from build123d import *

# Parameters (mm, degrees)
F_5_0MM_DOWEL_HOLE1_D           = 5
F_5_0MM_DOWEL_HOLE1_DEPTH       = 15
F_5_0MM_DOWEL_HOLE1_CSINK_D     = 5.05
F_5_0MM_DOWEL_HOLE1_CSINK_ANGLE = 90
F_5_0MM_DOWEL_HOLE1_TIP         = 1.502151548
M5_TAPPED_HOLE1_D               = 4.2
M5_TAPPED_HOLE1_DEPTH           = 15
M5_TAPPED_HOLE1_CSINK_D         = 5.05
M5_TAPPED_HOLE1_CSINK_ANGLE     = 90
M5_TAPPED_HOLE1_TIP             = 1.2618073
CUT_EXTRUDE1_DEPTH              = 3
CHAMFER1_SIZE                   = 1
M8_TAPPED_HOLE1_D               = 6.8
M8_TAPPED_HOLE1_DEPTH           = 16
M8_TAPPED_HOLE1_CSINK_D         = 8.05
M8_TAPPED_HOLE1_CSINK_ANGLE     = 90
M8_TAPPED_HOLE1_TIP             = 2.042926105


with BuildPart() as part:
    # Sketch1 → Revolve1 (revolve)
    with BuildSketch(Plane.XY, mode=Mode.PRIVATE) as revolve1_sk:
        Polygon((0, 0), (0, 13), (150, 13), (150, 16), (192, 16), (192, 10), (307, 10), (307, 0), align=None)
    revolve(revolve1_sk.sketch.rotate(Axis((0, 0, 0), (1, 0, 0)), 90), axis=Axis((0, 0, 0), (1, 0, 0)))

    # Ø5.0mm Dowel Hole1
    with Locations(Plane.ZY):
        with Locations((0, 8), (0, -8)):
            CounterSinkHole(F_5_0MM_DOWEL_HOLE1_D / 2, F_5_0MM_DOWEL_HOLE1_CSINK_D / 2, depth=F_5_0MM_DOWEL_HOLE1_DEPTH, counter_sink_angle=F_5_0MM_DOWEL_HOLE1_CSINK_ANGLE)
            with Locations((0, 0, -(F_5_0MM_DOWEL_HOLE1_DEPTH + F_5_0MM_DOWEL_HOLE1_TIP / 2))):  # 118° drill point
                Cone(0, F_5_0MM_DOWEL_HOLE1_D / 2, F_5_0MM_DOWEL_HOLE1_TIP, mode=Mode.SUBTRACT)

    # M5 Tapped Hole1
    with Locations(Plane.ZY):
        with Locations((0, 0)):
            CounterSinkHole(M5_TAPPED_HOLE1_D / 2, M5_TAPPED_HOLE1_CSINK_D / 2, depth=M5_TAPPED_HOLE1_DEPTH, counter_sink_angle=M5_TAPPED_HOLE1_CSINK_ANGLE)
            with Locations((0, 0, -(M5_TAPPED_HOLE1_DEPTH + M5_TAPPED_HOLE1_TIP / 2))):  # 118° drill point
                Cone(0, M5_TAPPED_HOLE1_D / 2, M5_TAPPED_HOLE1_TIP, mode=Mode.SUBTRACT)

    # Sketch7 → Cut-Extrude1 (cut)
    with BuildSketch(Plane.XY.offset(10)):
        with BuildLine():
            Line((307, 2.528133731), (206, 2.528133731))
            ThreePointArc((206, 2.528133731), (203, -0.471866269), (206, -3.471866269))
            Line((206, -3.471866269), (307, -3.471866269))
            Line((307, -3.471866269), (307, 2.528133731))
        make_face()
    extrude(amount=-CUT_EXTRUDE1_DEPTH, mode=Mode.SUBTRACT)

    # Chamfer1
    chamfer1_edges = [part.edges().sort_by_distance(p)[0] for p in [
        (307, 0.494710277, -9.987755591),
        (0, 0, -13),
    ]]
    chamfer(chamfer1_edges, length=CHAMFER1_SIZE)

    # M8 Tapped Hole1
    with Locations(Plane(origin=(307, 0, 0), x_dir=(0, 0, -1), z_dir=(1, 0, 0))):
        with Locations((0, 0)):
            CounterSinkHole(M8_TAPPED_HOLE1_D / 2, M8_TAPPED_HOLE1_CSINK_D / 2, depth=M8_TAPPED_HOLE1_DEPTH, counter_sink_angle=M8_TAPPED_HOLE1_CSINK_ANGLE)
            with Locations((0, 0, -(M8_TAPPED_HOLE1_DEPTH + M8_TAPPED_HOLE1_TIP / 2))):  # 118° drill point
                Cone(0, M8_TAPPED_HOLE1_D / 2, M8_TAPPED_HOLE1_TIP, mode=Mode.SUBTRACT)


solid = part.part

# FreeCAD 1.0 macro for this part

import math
import FreeCAD as App
import Part
import Sketcher

V = App.Vector


def edges_at(feature, points):
    """Names of the edges that pass closest to the given points."""
    edges = feature.Shape.Edges
    near = lambda p: min(range(len(edges)), key=lambda i: edges[i].distToShape(Part.Vertex(*p))[0])
    return sorted({f"Edge{near(p) + 1}" for p in points})

doc = App.newDocument("Part")
body = doc.addObject("PartDesign::Body", "Body")

# Sketch on XY plane
sketch1 = body.newObject("Sketcher::SketchObject", "Sketch")
sketch1.AttachmentSupport = (doc.getObject("XY_Plane"), [""])
sketch1.MapMode = "FlatFace"
sketch1.addGeometry(Part.LineSegment(V(0, 13, 0), V(0, 0, 0)), False)
sketch1.addGeometry(Part.LineSegment(V(0, 0, 0), V(307, 0, 0)), False)
sketch1.addGeometry(Part.LineSegment(V(307, 0, 0), V(307, 10, 0)), False)
sketch1.addGeometry(Part.LineSegment(V(307, 10, 0), V(192, 10, 0)), False)
sketch1.addGeometry(Part.LineSegment(V(192, 10, 0), V(192, 16, 0)), False)
sketch1.addGeometry(Part.LineSegment(V(192, 16, 0), V(150, 16, 0)), False)
sketch1.addGeometry(Part.LineSegment(V(150, 16, 0), V(150, 13, 0)), False)
sketch1.addGeometry(Part.LineSegment(V(150, 13, 0), V(0, 13, 0)), False)
sketch1.addConstraint(Sketcher.Constraint("Coincident", 0, 2, 1, 1))
sketch1.addConstraint(Sketcher.Constraint("Coincident", 1, 2, 2, 1))
sketch1.addConstraint(Sketcher.Constraint("Coincident", 2, 2, 3, 1))
sketch1.addConstraint(Sketcher.Constraint("Coincident", 3, 2, 4, 1))
sketch1.addConstraint(Sketcher.Constraint("Coincident", 4, 2, 5, 1))
sketch1.addConstraint(Sketcher.Constraint("Coincident", 5, 2, 6, 1))
sketch1.addConstraint(Sketcher.Constraint("Coincident", 6, 2, 7, 1))
sketch1.addConstraint(Sketcher.Constraint("Coincident", 7, 2, 0, 1))
sketch1.addConstraint(Sketcher.Constraint("Vertical", 0))
sketch1.addConstraint(Sketcher.Constraint("Horizontal", 1))
sketch1.addConstraint(Sketcher.Constraint("Vertical", 2))
sketch1.addConstraint(Sketcher.Constraint("Horizontal", 3))
sketch1.addConstraint(Sketcher.Constraint("Vertical", 4))
sketch1.addConstraint(Sketcher.Constraint("Horizontal", 5))
sketch1.addConstraint(Sketcher.Constraint("Vertical", 6))
sketch1.addConstraint(Sketcher.Constraint("Horizontal", 7))
sketch1.addConstraint(Sketcher.Constraint("Coincident", 0, 2, -1, 1))
sketch1.addConstraint(Sketcher.Constraint("DistanceX", 1, 1, 1, 2, 307.0))
sketch1.addConstraint(Sketcher.Constraint("DistanceX", 3, 2, 3, 1, 115.0))
sketch1.addConstraint(Sketcher.Constraint("DistanceX", 5, 2, 5, 1, 42.0))
sketch1.addConstraint(Sketcher.Constraint("DistanceY", 0, 2, 0, 1, 13.0))
sketch1.addConstraint(Sketcher.Constraint("DistanceY", 2, 1, 2, 2, 10.0))
sketch1.addConstraint(Sketcher.Constraint("DistanceY", 4, 1, 4, 2, 6.0))
revolution = body.newObject("PartDesign::Revolution", "Revolution")
revolution.Profile = sketch1
revolution.ReferenceAxis = (sketch1, ["H_Axis"])
revolution.Angle = 360

# Sketch on YZ plane
sketch2 = body.newObject("Sketcher::SketchObject", "Sketch001")
sketch2.AttachmentSupport = (doc.getObject("YZ_Plane"), [""])
sketch2.MapMode = "FlatFace"
sketch2.addGeometry(Part.Circle(V(8, 0, 0), V(0, 0, 1), 2.5), False)
sketch2.addGeometry(Part.Circle(V(-8, 0, 0), V(0, 0, 1), 2.5), False)
sketch2.addConstraint(Sketcher.Constraint("Equal", 0, 1))
sketch2.addConstraint(Sketcher.Constraint("Symmetric", 0, 3, 1, 3, -1, 1))
sketch2.addConstraint(Sketcher.Constraint("PointOnObject", 0, 3, -1))
sketch2.addConstraint(Sketcher.Constraint("Diameter", 0, 5.0))
sketch2.addConstraint(Sketcher.Constraint("DistanceX", -1, 1, 0, 3, 8.0))
doc.recompute()
hole = body.newObject("PartDesign::Hole", "Hole")
hole.Profile = sketch2
hole.ThreadType = "None"
hole.Diameter = 5
hole.DepthType = "Dimension"
hole.Depth = 15
hole.DrillPoint = "Angled"
hole.DrillPointAngle = 118
hole.HoleCutType = "Countersink"
hole.HoleCutDiameter = 5.05
hole.HoleCutCountersinkAngle = 90
hole.Reversed = True

# Sketch on YZ plane
sketch3 = body.newObject("Sketcher::SketchObject", "Sketch002")
sketch3.AttachmentSupport = (doc.getObject("YZ_Plane"), [""])
sketch3.MapMode = "FlatFace"
sketch3.addGeometry(Part.Circle(V(0, 0, 0), V(0, 0, 1), 2.1), False)
sketch3.addConstraint(Sketcher.Constraint("Coincident", 0, 3, -1, 1))
sketch3.addConstraint(Sketcher.Constraint("Diameter", 0, 4.2))
doc.recompute()
hole2 = body.newObject("PartDesign::Hole", "Hole001")
hole2.Profile = sketch3
hole2.ThreadType = "None"
hole2.Diameter = 4.2
hole2.DepthType = "Dimension"
hole2.Depth = 15
hole2.DrillPoint = "Angled"
hole2.DrillPointAngle = 118
hole2.HoleCutType = "Countersink"
hole2.HoleCutDiameter = 5.05
hole2.HoleCutCountersinkAngle = 90
hole2.Reversed = True

# Sketch on XY plane
sketch4 = body.newObject("Sketcher::SketchObject", "Sketch003")
sketch4.AttachmentSupport = (doc.getObject("XY_Plane"), [""])
sketch4.MapMode = "FlatFace"
sketch4.AttachmentOffset = App.Placement(V(0, 0, 10), App.Rotation())
sketch4.addGeometry(Part.LineSegment(V(307, 2.528134, 0), V(206, 2.528134, 0)), False)
sketch4.addGeometry(Part.ArcOfCircle(Part.Circle(V(206, -0.471866, 0), V(0, 0, 1), 3), math.radians(90), math.radians(270)), False)
sketch4.addGeometry(Part.LineSegment(V(206, -3.471866, 0), V(307, -3.471866, 0)), False)
sketch4.addGeometry(Part.LineSegment(V(307, -3.471866, 0), V(307, 2.528134, 0)), False)
sketch4.addConstraint(Sketcher.Constraint("Tangent", 0, 2, 1, 1))
sketch4.addConstraint(Sketcher.Constraint("Tangent", 1, 2, 2, 1))
sketch4.addConstraint(Sketcher.Constraint("Coincident", 2, 2, 3, 1))
sketch4.addConstraint(Sketcher.Constraint("Coincident", 3, 2, 0, 1))
sketch4.addConstraint(Sketcher.Constraint("Horizontal", 0))
sketch4.addConstraint(Sketcher.Constraint("Horizontal", 2))
sketch4.addConstraint(Sketcher.Constraint("Vertical", 3))
sketch4.addConstraint(Sketcher.Constraint("Radius", 1, 3.0))
sketch4.addConstraint(Sketcher.Constraint("DistanceX", 0, 2, 0, 1, 101.0))
sketch4.addConstraint(Sketcher.Constraint("DistanceX", -1, 1, 1, 3, 206.0))
sketch4.addConstraint(Sketcher.Constraint("DistanceY", 1, 3, -1, 1, 0.471866))
pocket1 = body.newObject("PartDesign::Pocket", "Pocket")
pocket1.Profile = sketch4
pocket1.Length = 3
doc.recompute()

chamfer = body.newObject("PartDesign::Chamfer", "Chamfer")
chamfer.Base = (pocket1, edges_at(pocket1, [(307, 0.495, -9.988), (0, 0, -13)]))
chamfer.Size = 1

# Sketch on YZ plane
sketch5 = body.newObject("Sketcher::SketchObject", "Sketch004")
sketch5.AttachmentSupport = (doc.getObject("YZ_Plane"), [""])
sketch5.MapMode = "FlatFace"
sketch5.AttachmentOffset = App.Placement(V(0, 0, 307), App.Rotation())
sketch5.addGeometry(Part.Circle(V(0, 0, 0), V(0, 0, 1), 3.4), False)
sketch5.addConstraint(Sketcher.Constraint("Coincident", 0, 3, -1, 1))
sketch5.addConstraint(Sketcher.Constraint("Diameter", 0, 6.8))
doc.recompute()
hole3 = body.newObject("PartDesign::Hole", "Hole002")
hole3.Profile = sketch5
hole3.ThreadType = "None"
hole3.Diameter = 6.8
hole3.DepthType = "Dimension"
hole3.Depth = 16
hole3.DrillPoint = "Angled"
hole3.DrillPointAngle = 118
hole3.HoleCutType = "Countersink"
hole3.HoleCutDiameter = 8.05
hole3.HoleCutCountersinkAngle = 90

doc.recompute()
